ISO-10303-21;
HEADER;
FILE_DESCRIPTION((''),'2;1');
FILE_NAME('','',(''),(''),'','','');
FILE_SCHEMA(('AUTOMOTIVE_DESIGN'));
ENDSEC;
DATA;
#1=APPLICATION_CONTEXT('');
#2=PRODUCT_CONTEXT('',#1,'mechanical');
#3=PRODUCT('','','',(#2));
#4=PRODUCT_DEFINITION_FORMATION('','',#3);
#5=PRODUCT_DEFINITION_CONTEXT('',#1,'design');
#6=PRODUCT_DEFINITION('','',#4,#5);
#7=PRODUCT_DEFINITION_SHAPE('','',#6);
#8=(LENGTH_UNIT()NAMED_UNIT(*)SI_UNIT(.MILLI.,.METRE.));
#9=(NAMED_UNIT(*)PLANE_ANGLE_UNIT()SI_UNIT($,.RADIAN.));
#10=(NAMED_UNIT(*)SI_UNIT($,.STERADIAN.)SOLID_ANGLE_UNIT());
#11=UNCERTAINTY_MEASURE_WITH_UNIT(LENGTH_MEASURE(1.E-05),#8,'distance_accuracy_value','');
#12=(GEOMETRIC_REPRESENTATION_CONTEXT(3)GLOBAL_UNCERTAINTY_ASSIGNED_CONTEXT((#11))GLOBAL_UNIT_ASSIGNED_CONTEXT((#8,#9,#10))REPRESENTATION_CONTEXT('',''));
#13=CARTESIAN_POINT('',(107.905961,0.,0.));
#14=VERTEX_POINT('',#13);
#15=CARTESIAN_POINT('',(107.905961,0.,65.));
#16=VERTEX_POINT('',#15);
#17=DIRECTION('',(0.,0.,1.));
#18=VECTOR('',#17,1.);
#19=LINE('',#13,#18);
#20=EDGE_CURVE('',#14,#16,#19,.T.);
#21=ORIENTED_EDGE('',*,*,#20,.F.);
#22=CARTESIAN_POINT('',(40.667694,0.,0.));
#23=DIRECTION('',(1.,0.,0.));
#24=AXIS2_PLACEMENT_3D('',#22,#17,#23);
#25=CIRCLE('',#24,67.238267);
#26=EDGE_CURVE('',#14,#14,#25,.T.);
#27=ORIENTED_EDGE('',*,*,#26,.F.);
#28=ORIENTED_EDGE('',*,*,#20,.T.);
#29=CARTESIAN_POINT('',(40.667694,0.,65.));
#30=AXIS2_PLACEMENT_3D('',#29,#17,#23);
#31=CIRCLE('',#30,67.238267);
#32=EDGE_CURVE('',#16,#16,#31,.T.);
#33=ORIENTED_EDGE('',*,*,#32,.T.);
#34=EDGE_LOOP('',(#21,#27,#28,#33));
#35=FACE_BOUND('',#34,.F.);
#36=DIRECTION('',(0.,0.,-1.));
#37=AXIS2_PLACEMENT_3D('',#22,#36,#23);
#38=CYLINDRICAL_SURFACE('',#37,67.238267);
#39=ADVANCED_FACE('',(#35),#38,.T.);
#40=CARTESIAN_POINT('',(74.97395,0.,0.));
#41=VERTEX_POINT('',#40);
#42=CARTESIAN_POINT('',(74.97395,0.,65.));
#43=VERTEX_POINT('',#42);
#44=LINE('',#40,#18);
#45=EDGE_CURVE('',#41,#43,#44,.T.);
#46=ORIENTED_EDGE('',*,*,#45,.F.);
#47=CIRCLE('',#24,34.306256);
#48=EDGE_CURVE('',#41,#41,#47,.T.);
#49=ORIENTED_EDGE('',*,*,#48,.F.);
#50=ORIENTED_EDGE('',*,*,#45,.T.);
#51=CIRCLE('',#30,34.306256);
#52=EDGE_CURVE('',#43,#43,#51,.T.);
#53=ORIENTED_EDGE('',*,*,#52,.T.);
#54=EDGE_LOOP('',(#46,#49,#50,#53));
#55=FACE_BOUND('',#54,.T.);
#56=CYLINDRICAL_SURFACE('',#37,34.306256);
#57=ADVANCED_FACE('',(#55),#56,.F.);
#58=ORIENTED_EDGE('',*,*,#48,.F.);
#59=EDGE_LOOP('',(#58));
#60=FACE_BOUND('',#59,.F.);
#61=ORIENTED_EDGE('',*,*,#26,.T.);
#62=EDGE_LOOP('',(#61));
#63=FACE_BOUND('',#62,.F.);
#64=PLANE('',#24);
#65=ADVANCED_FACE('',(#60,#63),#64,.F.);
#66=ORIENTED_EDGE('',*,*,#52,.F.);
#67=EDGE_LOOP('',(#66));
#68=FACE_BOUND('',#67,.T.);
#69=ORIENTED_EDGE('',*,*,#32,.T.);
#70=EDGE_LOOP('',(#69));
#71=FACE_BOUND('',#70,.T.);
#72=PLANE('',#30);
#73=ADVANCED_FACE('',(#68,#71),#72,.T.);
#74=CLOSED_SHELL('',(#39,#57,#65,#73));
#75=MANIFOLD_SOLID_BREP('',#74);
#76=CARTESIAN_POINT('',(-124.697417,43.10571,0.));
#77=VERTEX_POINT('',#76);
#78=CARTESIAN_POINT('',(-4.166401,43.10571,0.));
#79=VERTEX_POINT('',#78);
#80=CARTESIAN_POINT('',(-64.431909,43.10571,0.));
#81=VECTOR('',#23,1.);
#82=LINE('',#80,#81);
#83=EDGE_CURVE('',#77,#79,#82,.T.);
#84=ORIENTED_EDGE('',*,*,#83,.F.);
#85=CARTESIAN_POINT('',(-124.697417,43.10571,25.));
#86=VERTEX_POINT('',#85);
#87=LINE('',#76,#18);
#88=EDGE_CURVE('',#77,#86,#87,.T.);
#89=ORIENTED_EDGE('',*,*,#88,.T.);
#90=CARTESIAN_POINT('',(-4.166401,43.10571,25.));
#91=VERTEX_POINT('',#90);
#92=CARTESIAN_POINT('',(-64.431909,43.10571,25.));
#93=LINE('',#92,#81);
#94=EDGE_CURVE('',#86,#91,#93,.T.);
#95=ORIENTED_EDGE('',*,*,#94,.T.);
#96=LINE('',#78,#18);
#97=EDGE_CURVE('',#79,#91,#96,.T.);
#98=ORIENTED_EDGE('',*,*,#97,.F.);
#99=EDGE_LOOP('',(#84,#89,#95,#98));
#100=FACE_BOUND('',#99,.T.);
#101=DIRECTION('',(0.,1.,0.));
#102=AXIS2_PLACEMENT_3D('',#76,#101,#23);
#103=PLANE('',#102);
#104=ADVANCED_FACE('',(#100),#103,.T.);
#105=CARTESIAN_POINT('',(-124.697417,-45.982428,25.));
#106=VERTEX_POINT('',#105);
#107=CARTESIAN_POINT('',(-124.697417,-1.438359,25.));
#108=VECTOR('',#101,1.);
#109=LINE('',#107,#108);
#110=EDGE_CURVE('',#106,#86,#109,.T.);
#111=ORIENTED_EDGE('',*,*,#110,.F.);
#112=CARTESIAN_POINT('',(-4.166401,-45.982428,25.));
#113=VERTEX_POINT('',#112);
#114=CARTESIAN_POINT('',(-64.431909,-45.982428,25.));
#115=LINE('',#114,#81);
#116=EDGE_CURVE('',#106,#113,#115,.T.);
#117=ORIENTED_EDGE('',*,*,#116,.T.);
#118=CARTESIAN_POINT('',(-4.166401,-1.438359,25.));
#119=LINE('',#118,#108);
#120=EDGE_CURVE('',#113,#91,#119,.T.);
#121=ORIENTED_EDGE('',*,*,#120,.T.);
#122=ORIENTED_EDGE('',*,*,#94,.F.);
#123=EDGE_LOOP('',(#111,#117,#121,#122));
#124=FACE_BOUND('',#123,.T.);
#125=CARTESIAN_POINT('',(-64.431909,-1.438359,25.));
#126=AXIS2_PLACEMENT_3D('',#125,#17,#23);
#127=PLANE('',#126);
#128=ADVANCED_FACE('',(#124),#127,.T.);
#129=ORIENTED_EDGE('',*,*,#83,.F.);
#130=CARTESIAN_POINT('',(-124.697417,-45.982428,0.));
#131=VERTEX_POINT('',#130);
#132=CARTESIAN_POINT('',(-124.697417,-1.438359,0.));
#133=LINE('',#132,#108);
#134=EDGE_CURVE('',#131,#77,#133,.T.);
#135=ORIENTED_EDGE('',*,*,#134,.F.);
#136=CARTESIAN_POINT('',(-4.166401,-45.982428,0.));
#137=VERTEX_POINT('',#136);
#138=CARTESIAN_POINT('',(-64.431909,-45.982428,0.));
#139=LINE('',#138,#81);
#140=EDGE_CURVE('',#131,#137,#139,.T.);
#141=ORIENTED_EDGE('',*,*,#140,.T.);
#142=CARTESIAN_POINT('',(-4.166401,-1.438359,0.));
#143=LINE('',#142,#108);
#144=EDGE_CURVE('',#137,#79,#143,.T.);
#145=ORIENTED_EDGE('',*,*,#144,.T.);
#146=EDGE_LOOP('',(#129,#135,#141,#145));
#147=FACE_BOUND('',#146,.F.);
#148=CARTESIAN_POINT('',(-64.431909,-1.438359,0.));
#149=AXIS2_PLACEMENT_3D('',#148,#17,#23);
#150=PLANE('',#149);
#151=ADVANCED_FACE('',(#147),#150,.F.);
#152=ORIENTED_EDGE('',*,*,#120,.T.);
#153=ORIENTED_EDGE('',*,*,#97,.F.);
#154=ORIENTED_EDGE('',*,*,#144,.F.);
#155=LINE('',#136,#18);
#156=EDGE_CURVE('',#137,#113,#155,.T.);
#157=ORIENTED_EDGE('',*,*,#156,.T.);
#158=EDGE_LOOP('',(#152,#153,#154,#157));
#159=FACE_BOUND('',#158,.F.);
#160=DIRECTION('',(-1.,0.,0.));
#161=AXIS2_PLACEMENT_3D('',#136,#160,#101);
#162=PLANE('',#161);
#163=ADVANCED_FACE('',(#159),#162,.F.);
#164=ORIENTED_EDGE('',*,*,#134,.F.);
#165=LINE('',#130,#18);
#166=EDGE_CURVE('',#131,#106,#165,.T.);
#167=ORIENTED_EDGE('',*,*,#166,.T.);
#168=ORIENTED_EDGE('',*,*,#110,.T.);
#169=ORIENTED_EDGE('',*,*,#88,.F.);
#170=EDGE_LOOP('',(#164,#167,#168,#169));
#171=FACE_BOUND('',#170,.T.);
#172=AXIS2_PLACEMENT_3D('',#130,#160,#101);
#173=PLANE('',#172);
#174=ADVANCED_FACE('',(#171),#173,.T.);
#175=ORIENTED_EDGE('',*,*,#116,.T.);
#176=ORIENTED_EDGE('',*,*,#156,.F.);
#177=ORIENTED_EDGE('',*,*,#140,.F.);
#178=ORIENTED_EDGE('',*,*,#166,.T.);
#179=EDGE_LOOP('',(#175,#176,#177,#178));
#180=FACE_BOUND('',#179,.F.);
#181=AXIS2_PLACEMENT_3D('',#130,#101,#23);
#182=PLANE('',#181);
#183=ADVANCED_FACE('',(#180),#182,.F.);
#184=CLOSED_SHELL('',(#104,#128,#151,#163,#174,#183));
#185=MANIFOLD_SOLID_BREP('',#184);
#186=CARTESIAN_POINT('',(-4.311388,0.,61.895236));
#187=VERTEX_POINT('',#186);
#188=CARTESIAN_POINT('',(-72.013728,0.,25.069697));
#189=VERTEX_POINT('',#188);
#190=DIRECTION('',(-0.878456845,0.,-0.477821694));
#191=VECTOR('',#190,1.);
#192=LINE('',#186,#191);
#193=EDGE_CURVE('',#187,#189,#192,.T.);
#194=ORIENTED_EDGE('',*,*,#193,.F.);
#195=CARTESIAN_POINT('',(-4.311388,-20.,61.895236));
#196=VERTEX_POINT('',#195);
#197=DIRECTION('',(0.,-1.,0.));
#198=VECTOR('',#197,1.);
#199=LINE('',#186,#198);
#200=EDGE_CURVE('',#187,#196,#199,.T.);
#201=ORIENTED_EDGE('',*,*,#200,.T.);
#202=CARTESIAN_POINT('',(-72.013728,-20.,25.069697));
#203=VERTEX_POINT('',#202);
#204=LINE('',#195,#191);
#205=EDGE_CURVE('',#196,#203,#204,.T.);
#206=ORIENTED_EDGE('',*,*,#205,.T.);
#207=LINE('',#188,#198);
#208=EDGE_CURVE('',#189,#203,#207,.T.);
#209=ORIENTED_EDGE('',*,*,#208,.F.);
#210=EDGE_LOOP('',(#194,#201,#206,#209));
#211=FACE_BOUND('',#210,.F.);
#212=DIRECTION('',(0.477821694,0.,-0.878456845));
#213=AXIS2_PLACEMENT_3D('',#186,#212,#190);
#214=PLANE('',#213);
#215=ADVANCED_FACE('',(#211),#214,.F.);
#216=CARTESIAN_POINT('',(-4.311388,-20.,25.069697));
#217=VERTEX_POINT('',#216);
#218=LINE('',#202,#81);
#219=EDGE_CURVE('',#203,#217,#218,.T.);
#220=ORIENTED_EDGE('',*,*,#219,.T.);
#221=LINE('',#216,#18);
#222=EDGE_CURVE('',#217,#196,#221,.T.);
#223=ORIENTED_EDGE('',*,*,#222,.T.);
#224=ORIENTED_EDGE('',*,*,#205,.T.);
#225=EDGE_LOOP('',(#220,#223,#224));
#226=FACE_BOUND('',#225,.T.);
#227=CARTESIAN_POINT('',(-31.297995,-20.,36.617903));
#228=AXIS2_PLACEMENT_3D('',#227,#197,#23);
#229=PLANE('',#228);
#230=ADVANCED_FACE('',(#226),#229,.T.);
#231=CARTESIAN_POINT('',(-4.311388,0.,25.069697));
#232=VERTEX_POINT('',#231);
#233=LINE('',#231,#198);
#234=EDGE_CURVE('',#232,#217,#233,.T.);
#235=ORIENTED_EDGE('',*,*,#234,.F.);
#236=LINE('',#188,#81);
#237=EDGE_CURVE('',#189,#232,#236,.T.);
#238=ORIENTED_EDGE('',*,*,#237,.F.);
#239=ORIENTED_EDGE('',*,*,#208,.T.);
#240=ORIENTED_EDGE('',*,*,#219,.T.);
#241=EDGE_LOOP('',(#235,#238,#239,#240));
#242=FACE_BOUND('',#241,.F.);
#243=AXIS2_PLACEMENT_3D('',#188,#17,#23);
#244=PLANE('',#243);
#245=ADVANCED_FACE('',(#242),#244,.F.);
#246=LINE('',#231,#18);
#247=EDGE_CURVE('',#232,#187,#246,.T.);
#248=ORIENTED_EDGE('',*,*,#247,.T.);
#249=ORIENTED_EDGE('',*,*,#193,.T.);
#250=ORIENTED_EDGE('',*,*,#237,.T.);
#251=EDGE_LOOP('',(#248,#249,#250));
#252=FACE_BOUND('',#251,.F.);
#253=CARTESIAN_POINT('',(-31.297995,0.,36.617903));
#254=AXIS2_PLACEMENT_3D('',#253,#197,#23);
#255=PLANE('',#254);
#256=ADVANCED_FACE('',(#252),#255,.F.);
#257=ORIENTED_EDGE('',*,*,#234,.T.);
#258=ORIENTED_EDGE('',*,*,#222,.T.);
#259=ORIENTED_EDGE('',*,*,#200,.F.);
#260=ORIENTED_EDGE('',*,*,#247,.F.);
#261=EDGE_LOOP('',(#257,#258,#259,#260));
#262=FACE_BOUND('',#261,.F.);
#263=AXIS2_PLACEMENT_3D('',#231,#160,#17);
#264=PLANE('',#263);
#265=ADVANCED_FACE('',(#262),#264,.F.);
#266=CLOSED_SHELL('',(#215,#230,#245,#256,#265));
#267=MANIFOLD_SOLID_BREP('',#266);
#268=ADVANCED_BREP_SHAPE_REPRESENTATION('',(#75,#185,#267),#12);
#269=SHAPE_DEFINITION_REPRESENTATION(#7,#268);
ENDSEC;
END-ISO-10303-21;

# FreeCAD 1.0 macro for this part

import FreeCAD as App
import Part
import Sketcher

V = App.Vector

doc = App.newDocument("Part")
body = doc.addObject("PartDesign::Body", "Body")

# Sketch on XY plane
sketch1 = body.newObject("Sketcher::SketchObject", "Sketch")
sketch1.AttachmentSupport = (doc.getObject("XY_Plane"), [""])
sketch1.MapMode = "FlatFace"
sketch1.addGeometry(Part.LineSegment(V(-125, 43, 0), V(-125, -46, 0)), False)
sketch1.addGeometry(Part.LineSegment(V(-125, -46, 0), V(-4, -46, 0)), False)
sketch1.addGeometry(Part.LineSegment(V(-4, -46, 0), V(-4, 43, 0)), False)
sketch1.addGeometry(Part.LineSegment(V(-4, 43, 0), V(-125, 43, 0)), False)
sketch1.addConstraint(Sketcher.Constraint("Coincident", 0, 2, 1, 1))
sketch1.addConstraint(Sketcher.Constraint("Coincident", 1, 2, 2, 1))
sketch1.addConstraint(Sketcher.Constraint("Coincident", 2, 2, 3, 1))
sketch1.addConstraint(Sketcher.Constraint("Coincident", 3, 2, 0, 1))
sketch1.addConstraint(Sketcher.Constraint("Vertical", 0))
sketch1.addConstraint(Sketcher.Constraint("Horizontal", 1))
sketch1.addConstraint(Sketcher.Constraint("Vertical", 2))
sketch1.addConstraint(Sketcher.Constraint("Horizontal", 3))
sketch1.addConstraint(Sketcher.Constraint("DistanceY", 0, 2, 0, 1, 89.088138))
sketch1.addConstraint(Sketcher.Constraint("DistanceX", 1, 2, -1, 1, 4.166401))
sketch1.addConstraint(Sketcher.Constraint("DistanceX", 1, 1, 1, 2, 120.531016))
sketch1.addConstraint(Sketcher.Constraint("DistanceY", -1, 1, 2, 2, 43.10571))
pad1 = body.newObject("PartDesign::Pad", "Pad")
pad1.Profile = sketch1
pad1.Length = 25
body2 = doc.addObject("PartDesign::Body", "Body001")

# Sketch on XZ plane
sketch2 = body2.newObject("Sketcher::SketchObject", "Sketch001")
sketch2.AttachmentSupport = (doc.getObject("XZ_Plane001"), [""])
sketch2.MapMode = "FlatFace"
sketch2.addGeometry(Part.LineSegment(V(-4, 62, 0), V(-72, 25, 0)), False)
sketch2.addGeometry(Part.LineSegment(V(-72, 25, 0), V(-4, 25, 0)), False)
sketch2.addGeometry(Part.LineSegment(V(-4, 25, 0), V(-4, 62, 0)), False)
sketch2.addConstraint(Sketcher.Constraint("Coincident", 0, 2, 1, 1))
sketch2.addConstraint(Sketcher.Constraint("Coincident", 1, 2, 2, 1))
sketch2.addConstraint(Sketcher.Constraint("Coincident", 2, 2, 0, 1))
sketch2.addConstraint(Sketcher.Constraint("Horizontal", 1))
sketch2.addConstraint(Sketcher.Constraint("Vertical", 2))
sketch2.addConstraint(Sketcher.Constraint("DistanceX", 1, 1, 1, 2, 67.70234))
sketch2.addConstraint(Sketcher.Constraint("DistanceY", 2, 1, 2, 2, 36.825539))
sketch2.addConstraint(Sketcher.Constraint("DistanceX", 0, 2, -1, 1, 72.013728))
sketch2.addConstraint(Sketcher.Constraint("DistanceY", -1, 1, 0, 2, 25.069697))
pad2 = body2.newObject("PartDesign::Pad", "Pad001")
pad2.Profile = sketch2
pad2.Length = 20
body3 = doc.addObject("PartDesign::Body", "Body002")

# Sketch on XY plane
sketch3 = body3.newObject("Sketcher::SketchObject", "Sketch002")
sketch3.AttachmentSupport = (doc.getObject("XY_Plane002"), [""])
sketch3.MapMode = "FlatFace"
sketch3.addGeometry(Part.Circle(V(41, 0, 0), V(0, 0, 1), 67), False)
sketch3.addGeometry(Part.Circle(V(41, 0, 0), V(0, 0, 1), 34), False)
sketch3.addConstraint(Sketcher.Constraint("Coincident", 1, 3, 0, 3))
sketch3.addConstraint(Sketcher.Constraint("PointOnObject", 0, 3, -1))
sketch3.addConstraint(Sketcher.Constraint("Diameter", 1, 68.612512))
sketch3.addConstraint(Sketcher.Constraint("Diameter", 0, 134.476534))
sketch3.addConstraint(Sketcher.Constraint("DistanceX", -1, 1, 0, 3, 40.667694))
pad3 = body3.newObject("PartDesign::Pad", "Pad002")
pad3.Profile = sketch3
pad3.Length = 65

doc.recompute()
